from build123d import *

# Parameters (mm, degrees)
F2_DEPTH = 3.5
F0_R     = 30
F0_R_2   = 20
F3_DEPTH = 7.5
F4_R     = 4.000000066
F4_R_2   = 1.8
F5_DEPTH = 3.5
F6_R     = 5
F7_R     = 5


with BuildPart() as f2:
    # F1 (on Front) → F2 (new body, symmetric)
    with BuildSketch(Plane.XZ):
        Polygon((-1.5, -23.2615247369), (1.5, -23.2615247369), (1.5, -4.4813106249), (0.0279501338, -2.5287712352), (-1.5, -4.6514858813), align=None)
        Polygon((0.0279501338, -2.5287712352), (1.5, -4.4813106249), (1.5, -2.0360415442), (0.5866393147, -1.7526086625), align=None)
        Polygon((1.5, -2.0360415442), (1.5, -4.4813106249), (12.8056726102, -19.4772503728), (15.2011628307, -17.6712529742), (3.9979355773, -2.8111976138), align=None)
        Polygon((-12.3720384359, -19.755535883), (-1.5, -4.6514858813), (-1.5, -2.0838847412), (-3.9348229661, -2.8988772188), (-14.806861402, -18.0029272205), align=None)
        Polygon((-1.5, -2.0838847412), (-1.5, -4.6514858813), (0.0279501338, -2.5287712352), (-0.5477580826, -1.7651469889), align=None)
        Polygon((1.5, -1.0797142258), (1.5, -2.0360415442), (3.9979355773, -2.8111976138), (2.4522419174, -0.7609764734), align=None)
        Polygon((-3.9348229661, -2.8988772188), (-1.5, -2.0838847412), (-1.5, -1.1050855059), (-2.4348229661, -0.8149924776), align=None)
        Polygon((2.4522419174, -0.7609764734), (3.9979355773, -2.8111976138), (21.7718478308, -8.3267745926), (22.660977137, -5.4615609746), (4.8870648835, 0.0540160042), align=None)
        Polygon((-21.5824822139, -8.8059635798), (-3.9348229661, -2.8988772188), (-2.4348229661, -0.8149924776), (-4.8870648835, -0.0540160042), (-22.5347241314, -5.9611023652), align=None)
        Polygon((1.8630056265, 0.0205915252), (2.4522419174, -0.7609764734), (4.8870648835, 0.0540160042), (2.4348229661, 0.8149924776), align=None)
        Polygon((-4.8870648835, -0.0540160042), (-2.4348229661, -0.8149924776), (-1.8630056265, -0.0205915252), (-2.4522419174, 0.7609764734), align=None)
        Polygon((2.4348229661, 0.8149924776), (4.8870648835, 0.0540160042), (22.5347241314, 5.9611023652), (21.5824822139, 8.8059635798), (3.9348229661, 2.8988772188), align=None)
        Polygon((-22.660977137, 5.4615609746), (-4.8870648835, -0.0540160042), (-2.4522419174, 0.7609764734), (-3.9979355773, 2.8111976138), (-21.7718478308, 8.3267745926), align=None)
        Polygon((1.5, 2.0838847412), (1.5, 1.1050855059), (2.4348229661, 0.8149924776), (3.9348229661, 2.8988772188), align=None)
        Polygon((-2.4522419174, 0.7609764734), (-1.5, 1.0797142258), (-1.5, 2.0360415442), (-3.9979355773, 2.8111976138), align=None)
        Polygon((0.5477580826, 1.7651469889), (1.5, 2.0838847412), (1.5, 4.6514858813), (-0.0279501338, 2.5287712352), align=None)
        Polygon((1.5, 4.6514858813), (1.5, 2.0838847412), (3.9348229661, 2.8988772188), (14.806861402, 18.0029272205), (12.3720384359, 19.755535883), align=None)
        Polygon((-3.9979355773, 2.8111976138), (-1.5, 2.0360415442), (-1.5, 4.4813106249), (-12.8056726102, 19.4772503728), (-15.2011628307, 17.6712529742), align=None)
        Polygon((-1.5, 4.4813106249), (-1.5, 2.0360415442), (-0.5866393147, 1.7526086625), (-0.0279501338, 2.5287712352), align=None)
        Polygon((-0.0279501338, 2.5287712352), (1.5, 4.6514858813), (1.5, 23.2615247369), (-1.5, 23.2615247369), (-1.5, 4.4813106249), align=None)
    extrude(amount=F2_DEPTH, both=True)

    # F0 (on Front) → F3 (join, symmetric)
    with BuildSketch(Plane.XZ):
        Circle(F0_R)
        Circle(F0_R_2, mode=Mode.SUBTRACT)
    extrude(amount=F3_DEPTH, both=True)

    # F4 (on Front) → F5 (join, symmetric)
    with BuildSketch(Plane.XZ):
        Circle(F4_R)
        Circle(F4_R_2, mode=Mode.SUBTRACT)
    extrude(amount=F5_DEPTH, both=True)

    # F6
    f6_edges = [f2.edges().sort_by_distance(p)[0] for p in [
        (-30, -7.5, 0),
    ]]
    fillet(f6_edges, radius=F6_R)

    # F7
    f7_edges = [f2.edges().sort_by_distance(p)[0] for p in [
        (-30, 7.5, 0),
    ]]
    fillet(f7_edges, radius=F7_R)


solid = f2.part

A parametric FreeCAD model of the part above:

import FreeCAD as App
import Part
import Sketcher
from FreeCAD import Vector


def edges_at(feature, points):
    """Names of the edges that pass closest to the given points."""
    edges = feature.Shape.Edges
    near = lambda p: min(range(len(edges)), key=lambda i: edges[i].distToShape(Part.Vertex(*p))[0])
    return sorted({f"Edge{near(p) + 1}" for p in points})

doc = App.newDocument("Part")
body = doc.addObject("PartDesign::Body", "Body")

sketch1 = body.newObject("Sketcher::SketchObject", "Sketch")
sketch1.AttachmentSupport = (doc.getObject("XZ_Plane"), [""])
sketch1.MapMode = "FlatFace"
sketch1.addGeometry(Part.LineSegment(Vector(12.372038, 19.755536, 0), Vector(1.5, 4.651486, 0)), False)
sketch1.addGeometry(Part.LineSegment(Vector(1.5, 4.651486, 0), Vector(1.5, 23.261525, 0)), False)
sketch1.addGeometry(Part.LineSegment(Vector(1.5, 23.261525, 0), Vector(-1.5, 23.261525, 0)), False)
sketch1.addGeometry(Part.LineSegment(Vector(-1.5, 23.261525, 0), Vector(-1.5, 4.481311, 0)), False)
sketch1.addGeometry(Part.LineSegment(Vector(-1.5, 4.481311, 0), Vector(-12.805673, 19.47725, 0)), False)
sketch1.addGeometry(Part.LineSegment(Vector(-12.805673, 19.47725, 0), Vector(-15.201163, 17.671253, 0)), False)
sketch1.addGeometry(Part.LineSegment(Vector(-15.201163, 17.671253, 0), Vector(-3.997936, 2.811198, 0)), False)
sketch1.addGeometry(Part.LineSegment(Vector(-3.997936, 2.811198, 0), Vector(-21.771848, 8.326775, 0)), False)
sketch1.addGeometry(Part.LineSegment(Vector(-21.771848, 8.326775, 0), Vector(-22.660977, 5.461561, 0)), False)
sketch1.addGeometry(Part.LineSegment(Vector(-22.660977, 5.461561, 0), Vector(-4.887065, -0.054016, 0)), False)
sketch1.addGeometry(Part.LineSegment(Vector(-4.887065, -0.054016, 0), Vector(-22.534724, -5.961102, 0)), False)
sketch1.addGeometry(Part.LineSegment(Vector(-22.534724, -5.961102, 0), Vector(-21.582482, -8.805964, 0)), False)
sketch1.addGeometry(Part.LineSegment(Vector(-21.582482, -8.805964, 0), Vector(-3.934823, -2.898877, 0)), False)
sketch1.addGeometry(Part.LineSegment(Vector(-3.934823, -2.898877, 0), Vector(-14.806861, -18.002927, 0)), False)
sketch1.addGeometry(Part.LineSegment(Vector(-14.806861, -18.002927, 0), Vector(-12.372038, -19.755536, 0)), False)
sketch1.addGeometry(Part.LineSegment(Vector(-12.372038, -19.755536, 0), Vector(-1.5, -4.651486, 0)), False)
sketch1.addGeometry(Part.LineSegment(Vector(-1.5, -4.651486, 0), Vector(-1.5, -23.261525, 0)), False)
sketch1.addGeometry(Part.LineSegment(Vector(-1.5, -23.261525, 0), Vector(1.5, -23.261525, 0)), False)
sketch1.addGeometry(Part.LineSegment(Vector(1.5, -23.261525, 0), Vector(1.5, -4.481311, 0)), False)
sketch1.addGeometry(Part.LineSegment(Vector(1.5, -4.481311, 0), Vector(12.805673, -19.47725, 0)), False)
sketch1.addGeometry(Part.LineSegment(Vector(12.805673, -19.47725, 0), Vector(15.201163, -17.671253, 0)), False)
sketch1.addGeometry(Part.LineSegment(Vector(15.201163, -17.671253, 0), Vector(3.997936, -2.811198, 0)), False)
sketch1.addGeometry(Part.LineSegment(Vector(3.997936, -2.811198, 0), Vector(21.771848, -8.326775, 0)), False)
sketch1.addGeometry(Part.LineSegment(Vector(21.771848, -8.326775, 0), Vector(22.660977, -5.461561, 0)), False)
sketch1.addGeometry(Part.LineSegment(Vector(22.660977, -5.461561, 0), Vector(4.887065, 0.054016, 0)), False)
sketch1.addGeometry(Part.LineSegment(Vector(4.887065, 0.054016, 0), Vector(22.534724, 5.961102, 0)), False)
sketch1.addGeometry(Part.LineSegment(Vector(22.534724, 5.961102, 0), Vector(21.582482, 8.805964, 0)), False)
sketch1.addGeometry(Part.LineSegment(Vector(21.582482, 8.805964, 0), Vector(3.934823, 2.898877, 0)), False)
sketch1.addGeometry(Part.LineSegment(Vector(3.934823, 2.898877, 0), Vector(14.806861, 18.002927, 0)), False)
sketch1.addGeometry(Part.LineSegment(Vector(14.806861, 18.002927, 0), Vector(12.372038, 19.755536, 0)), False)
sketch1.addGeometry(Part.LineSegment(Vector(-0.586639, 1.752609, 0), Vector(-0.02795, 2.528771, 0)), False)
sketch1.addGeometry(Part.LineSegment(Vector(-0.02795, 2.528771, 0), Vector(0.547758, 1.765147, 0)), False)
sketch1.addGeometry(Part.LineSegment(Vector(0.547758, 1.765147, 0), Vector(1.5, 2.083885, 0)), False)
sketch1.addGeometry(Part.LineSegment(Vector(1.5, 2.083885, 0), Vector(1.5, 1.105086, 0)), False)
sketch1.addGeometry(Part.LineSegment(Vector(1.5, 1.105086, 0), Vector(2.434823, 0.814992, 0)), False)
sketch1.addGeometry(Part.LineSegment(Vector(2.434823, 0.814992, 0), Vector(1.863006, 0.020592, 0)), False)
sketch1.addGeometry(Part.LineSegment(Vector(1.863006, 0.020592, 0), Vector(2.452242, -0.760976, 0)), False)
sketch1.addGeometry(Part.LineSegment(Vector(2.452242, -0.760976, 0), Vector(1.5, -1.079714, 0)), False)
sketch1.addGeometry(Part.LineSegment(Vector(1.5, -1.079714, 0), Vector(1.5, -2.036042, 0)), False)
sketch1.addGeometry(Part.LineSegment(Vector(1.5, -2.036042, 0), Vector(0.586639, -1.752609, 0)), False)
sketch1.addGeometry(Part.LineSegment(Vector(0.586639, -1.752609, 0), Vector(0.02795, -2.528771, 0)), False)
sketch1.addGeometry(Part.LineSegment(Vector(0.02795, -2.528771, 0), Vector(-0.547758, -1.765147, 0)), False)
sketch1.addGeometry(Part.LineSegment(Vector(-0.547758, -1.765147, 0), Vector(-1.5, -2.083885, 0)), False)
sketch1.addGeometry(Part.LineSegment(Vector(-1.5, -2.083885, 0), Vector(-1.5, -1.105086, 0)), False)
sketch1.addGeometry(Part.LineSegment(Vector(-1.5, -1.105086, 0), Vector(-2.434823, -0.814992, 0)), False)
sketch1.addGeometry(Part.LineSegment(Vector(-2.434823, -0.814992, 0), Vector(-1.863006, -0.020592, 0)), False)
sketch1.addGeometry(Part.LineSegment(Vector(-1.863006, -0.020592, 0), Vector(-2.452242, 0.760976, 0)), False)
sketch1.addGeometry(Part.LineSegment(Vector(-2.452242, 0.760976, 0), Vector(-1.5, 1.079714, 0)), False)
sketch1.addGeometry(Part.LineSegment(Vector(-1.5, 1.079714, 0), Vector(-1.5, 2.036042, 0)), False)
sketch1.addGeometry(Part.LineSegment(Vector(-1.5, 2.036042, 0), Vector(-0.586639, 1.752609, 0)), False)
sketch1.addConstraint(Sketcher.Constraint("Coincident", 0, 2, 1, 1))
sketch1.addConstraint(Sketcher.Constraint("Coincident", 1, 2, 2, 1))
sketch1.addConstraint(Sketcher.Constraint("Coincident", 2, 2, 3, 1))
sketch1.addConstraint(Sketcher.Constraint("Coincident", 3, 2, 4, 1))
sketch1.addConstraint(Sketcher.Constraint("Coincident", 4, 2, 5, 1))
sketch1.addConstraint(Sketcher.Constraint("Coincident", 5, 2, 6, 1))
sketch1.addConstraint(Sketcher.Constraint("Coincident", 6, 2, 7, 1))
sketch1.addConstraint(Sketcher.Constraint("Coincident", 7, 2, 8, 1))
sketch1.addConstraint(Sketcher.Constraint("Coincident", 8, 2, 9, 1))
sketch1.addConstraint(Sketcher.Constraint("Coincident", 9, 2, 10, 1))
sketch1.addConstraint(Sketcher.Constraint("Coincident", 10, 2, 11, 1))
sketch1.addConstraint(Sketcher.Constraint("Coincident", 11, 2, 12, 1))
sketch1.addConstraint(Sketcher.Constraint("Coincident", 12, 2, 13, 1))
sketch1.addConstraint(Sketcher.Constraint("Coincident", 13, 2, 14, 1))
sketch1.addConstraint(Sketcher.Constraint("Coincident", 14, 2, 15, 1))
sketch1.addConstraint(Sketcher.Constraint("Coincident", 15, 2, 16, 1))
sketch1.addConstraint(Sketcher.Constraint("Coincident", 16, 2, 17, 1))
sketch1.addConstraint(Sketcher.Constraint("Coincident", 17, 2, 18, 1))
sketch1.addConstraint(Sketcher.Constraint("Coincident", 18, 2, 19, 1))
sketch1.addConstraint(Sketcher.Constraint("Coincident", 19, 2, 20, 1))
sketch1.addConstraint(Sketcher.Constraint("Coincident", 20, 2, 21, 1))
sketch1.addConstraint(Sketcher.Constraint("Coincident", 21, 2, 22, 1))
sketch1.addConstraint(Sketcher.Constraint("Coincident", 22, 2, 23, 1))
sketch1.addConstraint(Sketcher.Constraint("Coincident", 23, 2, 24, 1))
sketch1.addConstraint(Sketcher.Constraint("Coincident", 24, 2, 25, 1))
sketch1.addConstraint(Sketcher.Constraint("Coincident", 25, 2, 26, 1))
sketch1.addConstraint(Sketcher.Constraint("Coincident", 26, 2, 27, 1))
sketch1.addConstraint(Sketcher.Constraint("Coincident", 27, 2, 28, 1))
sketch1.addConstraint(Sketcher.Constraint("Coincident", 28, 2, 29, 1))
sketch1.addConstraint(Sketcher.Constraint("Coincident", 29, 2, 0, 1))
sketch1.addConstraint(Sketcher.Constraint("Coincident", 30, 2, 31, 1))
sketch1.addConstraint(Sketcher.Constraint("Coincident", 31, 2, 32, 1))
sketch1.addConstraint(Sketcher.Constraint("Coincident", 32, 2, 33, 1))
sketch1.addConstraint(Sketcher.Constraint("Coincident", 33, 2, 34, 1))
sketch1.addConstraint(Sketcher.Constraint("Coincident", 34, 2, 35, 1))
sketch1.addConstraint(Sketcher.Constraint("Coincident", 35, 2, 36, 1))
sketch1.addConstraint(Sketcher.Constraint("Coincident", 36, 2, 37, 1))
sketch1.addConstraint(Sketcher.Constraint("Coincident", 37, 2, 38, 1))
sketch1.addConstraint(Sketcher.Constraint("Coincident", 38, 2, 39, 1))
sketch1.addConstraint(Sketcher.Constraint("Coincident", 39, 2, 40, 1))
sketch1.addConstraint(Sketcher.Constraint("Coincident", 40, 2, 41, 1))
sketch1.addConstraint(Sketcher.Constraint("Coincident", 41, 2, 42, 1))
sketch1.addConstraint(Sketcher.Constraint("Coincident", 42, 2, 43, 1))
sketch1.addConstraint(Sketcher.Constraint("Coincident", 43, 2, 44, 1))
sketch1.addConstraint(Sketcher.Constraint("Coincident", 44, 2, 45, 1))
sketch1.addConstraint(Sketcher.Constraint("Coincident", 45, 2, 46, 1))
sketch1.addConstraint(Sketcher.Constraint("Coincident", 46, 2, 47, 1))
sketch1.addConstraint(Sketcher.Constraint("Coincident", 47, 2, 48, 1))
sketch1.addConstraint(Sketcher.Constraint("Coincident", 48, 2, 49, 1))
sketch1.addConstraint(Sketcher.Constraint("Coincident", 49, 2, 30, 1))
sketch1.addConstraint(Sketcher.Constraint("Vertical", 1))
sketch1.addConstraint(Sketcher.Constraint("Horizontal", 2))
sketch1.addConstraint(Sketcher.Constraint("Vertical", 3))
sketch1.addConstraint(Sketcher.Constraint("Vertical", 16))
sketch1.addConstraint(Sketcher.Constraint("Horizontal", 17))
sketch1.addConstraint(Sketcher.Constraint("Vertical", 18))
sketch1.addConstraint(Sketcher.Constraint("Vertical", 33))
sketch1.addConstraint(Sketcher.Constraint("Vertical", 38))
sketch1.addConstraint(Sketcher.Constraint("Vertical", 43))
sketch1.addConstraint(Sketcher.Constraint("Vertical", 48))
sketch1.addConstraint(Sketcher.Constraint("DistanceX", 2, 2, 2, 1, 3.0))
sketch1.addConstraint(Sketcher.Constraint("DistanceX", 17, 1, 17, 2, 3.0))
sketch1.addConstraint(Sketcher.Constraint("Distance", 5, 3.0))
sketch1.addConstraint(Sketcher.Constraint("Distance", 8, 3.0))
sketch1.addConstraint(Sketcher.Constraint("Distance", 11, 3.0))
sketch1.addConstraint(Sketcher.Constraint("Distance", 14, 3.0))
sketch1.addConstraint(Sketcher.Constraint("Distance", 20, 3.0))
sketch1.addConstraint(Sketcher.Constraint("Distance", 23, 3.0))
sketch1.addConstraint(Sketcher.Constraint("Distance", 26, 3.0))
sketch1.addConstraint(Sketcher.Constraint("Distance", 29, 3.0))
sketch1.addConstraint(Sketcher.Constraint("DistanceX", 15, 2, 0, 2, 3.0))
sketch1.addConstraint(Sketcher.Constraint("DistanceX", 3, 2, 32, 2, 3.0))
sketch1.addConstraint(Sketcher.Constraint("DistanceX", 43, 2, 37, 2, 3.0))
sketch1.addConstraint(Sketcher.Constraint("DistanceX", -1, 1, 0, 2, 1.5))
sketch1.addConstraint(Sketcher.Constraint("DistanceX", -1, 1, 37, 2, 1.5))
sketch1.addConstraint(Sketcher.Constraint("DistanceX", 47, 2, -1, 1, 1.5))
sketch1.addConstraint(Sketcher.Constraint("DistanceX", 34, 2, 27, 2, 1.5))
sketch1.addConstraint(Sketcher.Constraint("DistanceX", 12, 2, 44, 2, 1.5))
sketch1.addConstraint(Sketcher.Constraint("DistanceY", 33, 2, 33, 1, 0.978799))
sketch1.addConstraint(Sketcher.Constraint("DistanceY", 43, 1, 43, 2, 0.978799))
sketch1.addConstraint(Sketcher.Constraint("Distance", 34, 0.978799))
sketch1.addConstraint(Sketcher.Constraint("Distance", 35, 0.978799))
sketch1.addConstraint(Sketcher.Constraint("Distance", 36, 0.978799))
sketch1.addConstraint(Sketcher.Constraint("Distance", 44, 0.978799))
sketch1.addConstraint(Sketcher.Constraint("Distance", 45, 0.978799))
sketch1.addConstraint(Sketcher.Constraint("Distance", 46, 0.978799))
sketch1.addConstraint(Sketcher.Constraint("DistanceY", 1, 1, 1, 2, 18.610039))
sketch1.addConstraint(Sketcher.Constraint("DistanceY", 16, 2, 16, 1, 18.610039))
sketch1.addConstraint(Sketcher.Constraint("DistanceY", 9, 2, 0, 2, 4.705502))
sketch1.addConstraint(Sketcher.Constraint("DistanceY", 10, 2, 6, 2, 8.7723))
sketch1.addConstraint(Sketcher.Constraint("DistanceY", 15, 2, 24, 2, 4.705502))
sketch1.addConstraint(Sketcher.Constraint("DistanceY", 21, 2, 25, 2, 8.7723))
sketch1.addConstraint(Sketcher.Constraint("DistanceY", 32, 2, 0, 2, 2.567601))
sketch1.addConstraint(Sketcher.Constraint("DistanceY", 35, 2, 34, 2, 0.794401))
sketch1.addConstraint(Sketcher.Constraint("DistanceY", 37, 2, 33, 2, 2.1848))
sketch1.addConstraint(Sketcher.Constraint("DistanceY", 39, 2, 35, 2, 1.7732))
sketch1.addConstraint(Sketcher.Constraint("DistanceY", 18, 2, 39, 2, 2.728702))
sketch1.addConstraint(Sketcher.Constraint("DistanceY", 15, 2, 42, 2, 2.567601))
sketch1.addConstraint(Sketcher.Constraint("DistanceY", 44, 2, 45, 2, 0.794401))
sketch1.addConstraint(Sketcher.Constraint("Distance", 0, 18.610039))
sketch1.addConstraint(Sketcher.Constraint("Distance", 6, 18.610039))
sketch1.addConstraint(Sketcher.Constraint("Distance", 7, 18.610039))
sketch1.addConstraint(Sketcher.Constraint("Distance", 9, 18.610039))
sketch1.addConstraint(Sketcher.Constraint("Distance", 10, 18.610039))
sketch1.addConstraint(Sketcher.Constraint("Distance", 12, 18.610039))
sketch1.addConstraint(Sketcher.Constraint("Distance", 13, 18.610039))
sketch1.addConstraint(Sketcher.Constraint("Distance", 15, 18.610039))
sketch1.addConstraint(Sketcher.Constraint("Distance", 21, 18.610039))
sketch1.addConstraint(Sketcher.Constraint("Distance", 22, 18.610039))
sketch1.addConstraint(Sketcher.Constraint("Distance", 24, 18.610039))
sketch1.addConstraint(Sketcher.Constraint("Distance", 25, 18.610039))
sketch1.addConstraint(Sketcher.Constraint("Distance", 27, 18.610039))
sketch1.addConstraint(Sketcher.Constraint("Distance", 28, 18.610039))
sketch1.addConstraint(Sketcher.Constraint("Distance", 32, 1.004171))
sketch1.addConstraint(Sketcher.Constraint("Distance", 37, 1.004171))
sketch1.addConstraint(Sketcher.Constraint("Distance", 42, 1.004171))
sketch1.addConstraint(Sketcher.Constraint("Distance", 47, 1.004171))
sketch1.addConstraint(Sketcher.Constraint("DistanceY", 3, 2, 3, 1, 18.780214))
sketch1.addConstraint(Sketcher.Constraint("DistanceY", 18, 1, 18, 2, 18.780214))
sketch1.addConstraint(Sketcher.Constraint("DistanceY", 38, 2, 38, 1, 0.956327))
sketch1.addConstraint(Sketcher.Constraint("DistanceY", 48, 1, 48, 2, 0.956327))
sketch1.addConstraint(Sketcher.Constraint("DistanceY", -1, 1, 3, 2, 4.481311))
sketch1.addConstraint(Sketcher.Constraint("DistanceY", -1, 1, 4, 2, 19.47725))
sketch1.addConstraint(Sketcher.Constraint("DistanceY", -1, 1, 8, 2, 5.461561))
sketch1.addConstraint(Sketcher.Constraint("DistanceX", 13, 2, -1, 1, 14.806861))
sketch1.addConstraint(Sketcher.Constraint("DistanceX", 14, 2, -1, 1, 12.372038))
sketch1.addConstraint(Sketcher.Constraint("DistanceY", 18, 2, -1, 1, 4.481311))
sketch1.addConstraint(Sketcher.Constraint("DistanceY", 19, 2, -1, 1, 19.47725))
sketch1.addConstraint(Sketcher.Constraint("DistanceY", 23, 2, -1, 1, 5.461561))
sketch1.addConstraint(Sketcher.Constraint("DistanceX", -1, 1, 28, 2, 14.806861))
sketch1.addConstraint(Sketcher.Constraint("DistanceX", -1, 1, 29, 2, 12.372038))
sketch1.addConstraint(Sketcher.Constraint("DistanceX", 30, 2, -1, 1, 0.02795))
sketch1.addConstraint(Sketcher.Constraint("DistanceY", -1, 1, 30, 2, 2.528771))
sketch1.addConstraint(Sketcher.Constraint("DistanceX", -1, 1, 31, 2, 0.547758))
sketch1.addConstraint(Sketcher.Constraint("DistanceX", -1, 1, 39, 2, 0.586639))
sketch1.addConstraint(Sketcher.Constraint("DistanceX", -1, 1, 40, 2, 0.02795))
sketch1.addConstraint(Sketcher.Constraint("DistanceY", 40, 2, -1, 1, 2.528771))
sketch1.addConstraint(Sketcher.Constraint("DistanceX", 41, 2, -1, 1, 0.547758))
sketch1.addConstraint(Sketcher.Constraint("DistanceY", 45, 2, -1, 1, 0.020592))
sketch1.addConstraint(Sketcher.Constraint("DistanceX", 46, 2, -1, 1, 2.452242))
sketch1.addConstraint(Sketcher.Constraint("DistanceX", 49, 2, -1, 1, 0.586639))
sketch1.addConstraint(Sketcher.Constraint("DistanceY", -1, 1, 49, 2, 1.752609))
sketch1.addConstraint(Sketcher.Constraint("DistanceX", 5, 2, 4, 2, 2.39549))
sketch1.addConstraint(Sketcher.Constraint("DistanceY", 6, 2, 0, 2, 1.840288))
sketch1.addConstraint(Sketcher.Constraint("DistanceY", 7, 2, 5, 2, 9.344478))
sketch1.addConstraint(Sketcher.Constraint("DistanceX", 10, 2, 11, 2, 0.952242))
sketch1.addConstraint(Sketcher.Constraint("DistanceX", 19, 2, 20, 2, 2.39549))
sketch1.addConstraint(Sketcher.Constraint("DistanceY", 15, 2, 21, 2, 1.840288))
sketch1.addConstraint(Sketcher.Constraint("DistanceX", 12, 2, 21, 2, 7.932759))
sketch1.addConstraint(Sketcher.Constraint("DistanceY", 20, 2, 22, 2, 9.344478))
pad1 = body.newObject("PartDesign::Pad", "Pad")
pad1.Profile = sketch1
pad1.Length = 7
pad1.Midplane = True

sketch2 = body.newObject("Sketcher::SketchObject", "Sketch001")
sketch2.AttachmentSupport = (doc.getObject("XZ_Plane"), [""])
sketch2.MapMode = "FlatFace"
sketch2.addGeometry(Part.Circle(Vector(0, 0, 0), Vector(0, 0, 1), 30), False)
sketch2.addGeometry(Part.Circle(Vector(0, 0, 0), Vector(0, 0, 1), 20), False)
sketch2.addConstraint(Sketcher.Constraint("Coincident", 0, 3, -1, 1))
sketch2.addConstraint(Sketcher.Constraint("Coincident", 1, 3, -1, 1))
sketch2.addConstraint(Sketcher.Constraint("Diameter", 0, 60.0))
sketch2.addConstraint(Sketcher.Constraint("Diameter", 1, 40.0))
pad2 = body.newObject("PartDesign::Pad", "Pad001")
pad2.Profile = sketch2
pad2.Length = 15
pad2.Midplane = True

sketch3 = body.newObject("Sketcher::SketchObject", "Sketch002")
sketch3.AttachmentSupport = (doc.getObject("XZ_Plane"), [""])
sketch3.MapMode = "FlatFace"
sketch3.addGeometry(Part.Circle(Vector(0, 0, 0), Vector(0, 0, 1), 4), False)
sketch3.addGeometry(Part.Circle(Vector(0, 0, 0), Vector(0, 0, 1), 1.8), False)
sketch3.addConstraint(Sketcher.Constraint("Coincident", 0, 3, -1, 1))
sketch3.addConstraint(Sketcher.Constraint("Coincident", 1, 3, -1, 1))
sketch3.addConstraint(Sketcher.Constraint("Diameter", 0, 8.0))
sketch3.addConstraint(Sketcher.Constraint("Diameter", 1, 3.6))
pad3 = body.newObject("PartDesign::Pad", "Pad002")
pad3.Profile = sketch3
pad3.Length = 7
pad3.Midplane = True
doc.recompute()

fillet = body.newObject("PartDesign::Fillet", "Fillet")
fillet.Base = (pad3, edges_at(pad3, [(-30, -7.5, 0)]))
fillet.Radius = 5
doc.recompute()

fillet2 = body.newObject("PartDesign::Fillet", "Fillet001")
fillet2.Base = (fillet, edges_at(fillet, [(-30, 7.5, 0)]))
fillet2.Radius = 5

doc.recompute()
